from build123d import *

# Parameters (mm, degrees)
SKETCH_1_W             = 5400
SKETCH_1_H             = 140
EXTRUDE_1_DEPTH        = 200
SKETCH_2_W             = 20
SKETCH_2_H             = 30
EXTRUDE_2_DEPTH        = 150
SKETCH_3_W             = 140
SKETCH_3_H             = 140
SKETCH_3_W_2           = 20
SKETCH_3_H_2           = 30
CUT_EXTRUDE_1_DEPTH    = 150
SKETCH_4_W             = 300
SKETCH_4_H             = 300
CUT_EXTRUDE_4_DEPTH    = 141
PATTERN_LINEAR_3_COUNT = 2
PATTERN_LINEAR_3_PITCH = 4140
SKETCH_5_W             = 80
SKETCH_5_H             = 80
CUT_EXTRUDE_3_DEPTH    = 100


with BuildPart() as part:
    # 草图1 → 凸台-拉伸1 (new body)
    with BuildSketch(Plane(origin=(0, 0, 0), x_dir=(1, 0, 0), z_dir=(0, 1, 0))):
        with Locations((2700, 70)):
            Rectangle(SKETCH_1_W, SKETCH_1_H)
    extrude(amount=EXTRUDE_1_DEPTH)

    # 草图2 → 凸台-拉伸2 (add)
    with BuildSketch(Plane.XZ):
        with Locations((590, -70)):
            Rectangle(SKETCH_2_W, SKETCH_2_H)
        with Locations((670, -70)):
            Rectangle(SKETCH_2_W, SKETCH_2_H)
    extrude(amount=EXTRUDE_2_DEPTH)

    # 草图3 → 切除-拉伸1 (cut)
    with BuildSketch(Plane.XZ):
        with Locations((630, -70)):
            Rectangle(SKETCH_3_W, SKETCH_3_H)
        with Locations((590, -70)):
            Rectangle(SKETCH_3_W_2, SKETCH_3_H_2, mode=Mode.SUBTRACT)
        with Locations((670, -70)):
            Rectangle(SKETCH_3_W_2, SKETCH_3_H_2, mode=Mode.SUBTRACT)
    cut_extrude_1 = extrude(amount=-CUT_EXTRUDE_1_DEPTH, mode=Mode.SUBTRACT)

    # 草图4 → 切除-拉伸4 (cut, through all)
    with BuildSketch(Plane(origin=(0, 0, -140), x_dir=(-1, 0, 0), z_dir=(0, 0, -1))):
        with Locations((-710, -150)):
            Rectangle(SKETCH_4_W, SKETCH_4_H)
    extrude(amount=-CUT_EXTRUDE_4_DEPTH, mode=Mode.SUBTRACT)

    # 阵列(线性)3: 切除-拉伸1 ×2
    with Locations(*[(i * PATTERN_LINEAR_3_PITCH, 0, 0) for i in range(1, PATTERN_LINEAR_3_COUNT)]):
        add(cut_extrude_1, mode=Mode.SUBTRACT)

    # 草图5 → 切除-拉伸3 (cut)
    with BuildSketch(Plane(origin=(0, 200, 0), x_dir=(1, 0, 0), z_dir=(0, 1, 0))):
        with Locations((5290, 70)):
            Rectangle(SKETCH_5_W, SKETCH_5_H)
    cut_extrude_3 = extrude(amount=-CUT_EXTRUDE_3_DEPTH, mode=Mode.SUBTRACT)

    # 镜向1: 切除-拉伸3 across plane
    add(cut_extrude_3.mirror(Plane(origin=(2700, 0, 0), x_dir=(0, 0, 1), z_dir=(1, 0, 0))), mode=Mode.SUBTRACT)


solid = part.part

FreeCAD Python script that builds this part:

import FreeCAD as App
import Part
import Sketcher

V = App.Vector
Q = App.Units.Quantity

doc = App.newDocument("Part")
body = doc.addObject("PartDesign::Body", "Body")

sketch1 = doc.addObject("Sketcher::SketchObject", "Sketch")
body.addObject(sketch1)
sketch1.AttachmentSupport = (doc.XZ_Plane, [""])
sketch1.MapMode = "FlatFace"
sketch1.addGeometry(Part.LineSegment(V(0, -140, 0), V(0, 0, 0)), False)
sketch1.addGeometry(Part.LineSegment(V(0, 0, 0), V(5400, 0, 0)), False)
sketch1.addGeometry(Part.LineSegment(V(5400, 0, 0), V(5400, -140, 0)), False)
sketch1.addGeometry(Part.LineSegment(V(5400, -140, 0), V(0, -140, 0)), False)
sketch1.addConstraint(Sketcher.Constraint("Coincident", 0, 2, 1, 1))
sketch1.addConstraint(Sketcher.Constraint("Coincident", 1, 2, 2, 1))
sketch1.addConstraint(Sketcher.Constraint("Coincident", 2, 2, 3, 1))
sketch1.addConstraint(Sketcher.Constraint("Coincident", 3, 2, 0, 1))
sketch1.addConstraint(Sketcher.Constraint("Vertical", 0))
sketch1.addConstraint(Sketcher.Constraint("Horizontal", 1))
sketch1.addConstraint(Sketcher.Constraint("Vertical", 2))
sketch1.addConstraint(Sketcher.Constraint("Horizontal", 3))
sketch1.addConstraint(Sketcher.Constraint("Coincident", 0, 2, -1, 1))
sketch1.addConstraint(Sketcher.Constraint("DistanceX", 1, 1, 1, 2, Q("5400 mm")))
sketch1.addConstraint(Sketcher.Constraint("DistanceY", 0, 1, 0, 2, Q("140 mm")))
pad1 = doc.addObject("PartDesign::Pad", "Pad")
body.addObject(pad1)
pad1.Profile = sketch1
pad1.Length = 200
pad1.Reversed = True

sketch2 = doc.addObject("Sketcher::SketchObject", "Sketch001")
body.addObject(sketch2)
sketch2.AttachmentSupport = (doc.XZ_Plane, [""])
sketch2.MapMode = "FlatFace"
sketch2.addGeometry(Part.LineSegment(V(580, -55, 0), V(580, -85, 0)), False)
sketch2.addGeometry(Part.LineSegment(V(580, -85, 0), V(600, -85, 0)), False)
sketch2.addGeometry(Part.LineSegment(V(600, -85, 0), V(600, -55, 0)), False)
sketch2.addGeometry(Part.LineSegment(V(600, -55, 0), V(580, -55, 0)), False)
sketch2.addGeometry(Part.LineSegment(V(660, -55, 0), V(660, -85, 0)), False)
sketch2.addGeometry(Part.LineSegment(V(660, -85, 0), V(680, -85, 0)), False)
sketch2.addGeometry(Part.LineSegment(V(680, -85, 0), V(680, -55, 0)), False)
sketch2.addGeometry(Part.LineSegment(V(680, -55, 0), V(660, -55, 0)), False)
sketch2.addConstraint(Sketcher.Constraint("Coincident", 0, 2, 1, 1))
sketch2.addConstraint(Sketcher.Constraint("Coincident", 1, 2, 2, 1))
sketch2.addConstraint(Sketcher.Constraint("Coincident", 2, 2, 3, 1))
sketch2.addConstraint(Sketcher.Constraint("Coincident", 3, 2, 0, 1))
sketch2.addConstraint(Sketcher.Constraint("Coincident", 4, 2, 5, 1))
sketch2.addConstraint(Sketcher.Constraint("Coincident", 5, 2, 6, 1))
sketch2.addConstraint(Sketcher.Constraint("Coincident", 6, 2, 7, 1))
sketch2.addConstraint(Sketcher.Constraint("Coincident", 7, 2, 4, 1))
sketch2.addConstraint(Sketcher.Constraint("Vertical", 0))
sketch2.addConstraint(Sketcher.Constraint("Horizontal", 1))
sketch2.addConstraint(Sketcher.Constraint("Vertical", 2))
sketch2.addConstraint(Sketcher.Constraint("Horizontal", 3))
sketch2.addConstraint(Sketcher.Constraint("Vertical", 4))
sketch2.addConstraint(Sketcher.Constraint("Horizontal", 5))
sketch2.addConstraint(Sketcher.Constraint("Vertical", 6))
sketch2.addConstraint(Sketcher.Constraint("Horizontal", 7))
sketch2.addConstraint(Sketcher.Constraint("Horizontal", 1, 2, 4, 2))
sketch2.addConstraint(Sketcher.Constraint("Horizontal", 3, 2, 6, 2))
sketch2.addConstraint(Sketcher.Constraint("Equal", 3, 5))
sketch2.addConstraint(Sketcher.Constraint("DistanceX", 1, 1, 1, 2, Q("20 mm")))
sketch2.addConstraint(Sketcher.Constraint("DistanceY", 0, 2, 0, 1, Q("30 mm")))
sketch2.addConstraint(Sketcher.Constraint("DistanceX", -1, 1, 0, 2, Q("580 mm")))
sketch2.addConstraint(Sketcher.Constraint("DistanceY", 0, 2, -1, 1, Q("85 mm")))
sketch2.addConstraint(Sketcher.Constraint("DistanceX", -1, 1, 4, 2, Q("660 mm")))
pad2 = doc.addObject("PartDesign::Pad", "Pad001")
body.addObject(pad2)
pad2.Profile = sketch2
pad2.Length = 150

sketch3 = doc.addObject("Sketcher::SketchObject", "Sketch002")
body.addObject(sketch3)
sketch3.AttachmentSupport = (doc.XZ_Plane, [""])
sketch3.MapMode = "FlatFace"
sketch3.addGeometry(Part.LineSegment(V(560, 0, 0), V(560, -140, 0)), False)
sketch3.addGeometry(Part.LineSegment(V(560, -140, 0), V(700, -140, 0)), False)
sketch3.addGeometry(Part.LineSegment(V(700, -140, 0), V(700, 0, 0)), False)
sketch3.addGeometry(Part.LineSegment(V(700, 0, 0), V(560, 0, 0)), False)
sketch3.addGeometry(Part.LineSegment(V(600, -85, 0), V(580, -85, 0)), False)
sketch3.addGeometry(Part.LineSegment(V(580, -85, 0), V(580, -55, 0)), False)
sketch3.addGeometry(Part.LineSegment(V(580, -55, 0), V(600, -55, 0)), False)
sketch3.addGeometry(Part.LineSegment(V(600, -55, 0), V(600, -85, 0)), False)
sketch3.addGeometry(Part.LineSegment(V(680, -85, 0), V(660, -85, 0)), False)
sketch3.addGeometry(Part.LineSegment(V(660, -85, 0), V(660, -55, 0)), False)
sketch3.addGeometry(Part.LineSegment(V(660, -55, 0), V(680, -55, 0)), False)
sketch3.addGeometry(Part.LineSegment(V(680, -55, 0), V(680, -85, 0)), False)
sketch3.addConstraint(Sketcher.Constraint("Coincident", 0, 2, 1, 1))
sketch3.addConstraint(Sketcher.Constraint("Coincident", 1, 2, 2, 1))
sketch3.addConstraint(Sketcher.Constraint("Coincident", 2, 2, 3, 1))
sketch3.addConstraint(Sketcher.Constraint("Coincident", 3, 2, 0, 1))
sketch3.addConstraint(Sketcher.Constraint("Coincident", 4, 2, 5, 1))
sketch3.addConstraint(Sketcher.Constraint("Coincident", 5, 2, 6, 1))
sketch3.addConstraint(Sketcher.Constraint("Coincident", 6, 2, 7, 1))
sketch3.addConstraint(Sketcher.Constraint("Coincident", 7, 2, 4, 1))
sketch3.addConstraint(Sketcher.Constraint("Coincident", 8, 2, 9, 1))
sketch3.addConstraint(Sketcher.Constraint("Coincident", 9, 2, 10, 1))
sketch3.addConstraint(Sketcher.Constraint("Coincident", 10, 2, 11, 1))
sketch3.addConstraint(Sketcher.Constraint("Coincident", 11, 2, 8, 1))
sketch3.addConstraint(Sketcher.Constraint("Vertical", 0))
sketch3.addConstraint(Sketcher.Constraint("Horizontal", 1))
sketch3.addConstraint(Sketcher.Constraint("Vertical", 2))
sketch3.addConstraint(Sketcher.Constraint("Horizontal", 3))
sketch3.addConstraint(Sketcher.Constraint("Horizontal", 4))
sketch3.addConstraint(Sketcher.Constraint("Vertical", 5))
sketch3.addConstraint(Sketcher.Constraint("Horizontal", 6))
sketch3.addConstraint(Sketcher.Constraint("Vertical", 7))
sketch3.addConstraint(Sketcher.Constraint("Horizontal", 8))
sketch3.addConstraint(Sketcher.Constraint("Vertical", 9))
sketch3.addConstraint(Sketcher.Constraint("Horizontal", 10))
sketch3.addConstraint(Sketcher.Constraint("Vertical", 11))
sketch3.addConstraint(Sketcher.Constraint("PointOnObject", 2, 2, -1))
sketch3.addConstraint(Sketcher.Constraint("Horizontal", 7, 2, 8, 2))
sketch3.addConstraint(Sketcher.Constraint("Horizontal", 6, 2, 9, 2))
sketch3.addConstraint(Sketcher.Constraint("Equal", 6, 8))
sketch3.addConstraint(Sketcher.Constraint("Equal", 3, 0))
sketch3.addConstraint(Sketcher.Constraint("DistanceX", 1, 1, 1, 2, Q("140 mm")))
sketch3.addConstraint(Sketcher.Constraint("DistanceX", 4, 2, 4, 1, Q("20 mm")))
sketch3.addConstraint(Sketcher.Constraint("DistanceY", 5, 1, 5, 2, Q("30 mm")))
sketch3.addConstraint(Sketcher.Constraint("DistanceX", -1, 1, 0, 2, Q("560 mm")))
sketch3.addConstraint(Sketcher.Constraint("DistanceX", -1, 1, 4, 2, Q("580 mm")))
sketch3.addConstraint(Sketcher.Constraint("DistanceY", 4, 2, -1, 1, Q("85 mm")))
sketch3.addConstraint(Sketcher.Constraint("DistanceX", -1, 1, 8, 2, Q("660 mm")))
pocket1 = doc.addObject("PartDesign::Pocket", "Pocket")
body.addObject(pocket1)
pocket1.Profile = sketch3
pocket1.Length = 150

sketch4 = doc.addObject("Sketcher::SketchObject", "Sketch003")
body.addObject(sketch4)
sketch4.AttachmentSupport = (doc.XY_Plane, [""])
sketch4.MapMode = "FlatFace"
sketch4.AttachmentOffset = App.Placement(V(0, 0, -140), App.Rotation())
sketch4.addGeometry(Part.LineSegment(V(860, 0, 0), V(860, -300, 0)), False)
sketch4.addGeometry(Part.LineSegment(V(860, -300, 0), V(560, -300, 0)), False)
sketch4.addGeometry(Part.LineSegment(V(560, -300, 0), V(560, 0, 0)), False)
sketch4.addGeometry(Part.LineSegment(V(560, 0, 0), V(860, 0, 0)), False)
sketch4.addConstraint(Sketcher.Constraint("Coincident", 0, 2, 1, 1))
sketch4.addConstraint(Sketcher.Constraint("Coincident", 1, 2, 2, 1))
sketch4.addConstraint(Sketcher.Constraint("Coincident", 2, 2, 3, 1))
sketch4.addConstraint(Sketcher.Constraint("Coincident", 3, 2, 0, 1))
sketch4.addConstraint(Sketcher.Constraint("Vertical", 0))
sketch4.addConstraint(Sketcher.Constraint("Horizontal", 1))
sketch4.addConstraint(Sketcher.Constraint("Vertical", 2))
sketch4.addConstraint(Sketcher.Constraint("Horizontal", 3))
sketch4.addConstraint(Sketcher.Constraint("PointOnObject", 2, 2, -1))
sketch4.addConstraint(Sketcher.Constraint("Equal", 3, 0))
sketch4.addConstraint(Sketcher.Constraint("DistanceX", 1, 2, 1, 1, Q("300 mm")))
sketch4.addConstraint(Sketcher.Constraint("DistanceX", -1, 1, 0, 2, Q("860 mm")))
pocket2 = doc.addObject("PartDesign::Pocket", "Pocket001")
body.addObject(pocket2)
pocket2.Profile = sketch4
pocket2.Type = "ThroughAll"
pocket2.Reversed = True
doc.recompute()

linearpattern = doc.addObject("PartDesign::LinearPattern", "LinearPattern")
body.addObject(linearpattern)
linearpattern.Originals = [pocket1]
linearpattern.Direction = (doc.X_Axis, [""])
linearpattern.Mode = "offset"
linearpattern.Offset = 4140
linearpattern.Occurrences = 2
body.Tip = linearpattern

sketch5 = doc.addObject("Sketcher::SketchObject", "Sketch004")
body.addObject(sketch5)
sketch5.AttachmentSupport = (doc.XZ_Plane, [""])
sketch5.MapMode = "FlatFace"
sketch5.AttachmentOffset = App.Placement(V(0, 0, -200), App.Rotation())
sketch5.addGeometry(Part.LineSegment(V(5250, -110, 0), V(5250, -30, 0)), False)
sketch5.addGeometry(Part.LineSegment(V(5250, -30, 0), V(5330, -30, 0)), False)
sketch5.addGeometry(Part.LineSegment(V(5330, -30, 0), V(5330, -110, 0)), False)
sketch5.addGeometry(Part.LineSegment(V(5330, -110, 0), V(5250, -110, 0)), False)
sketch5.addConstraint(Sketcher.Constraint("Coincident", 0, 2, 1, 1))
sketch5.addConstraint(Sketcher.Constraint("Coincident", 1, 2, 2, 1))
sketch5.addConstraint(Sketcher.Constraint("Coincident", 2, 2, 3, 1))
sketch5.addConstraint(Sketcher.Constraint("Coincident", 3, 2, 0, 1))
sketch5.addConstraint(Sketcher.Constraint("Vertical", 0))
sketch5.addConstraint(Sketcher.Constraint("Horizontal", 1))
sketch5.addConstraint(Sketcher.Constraint("Vertical", 2))
sketch5.addConstraint(Sketcher.Constraint("Horizontal", 3))
sketch5.addConstraint(Sketcher.Constraint("Equal", 3, 0))
sketch5.addConstraint(Sketcher.Constraint("DistanceX", 1, 1, 1, 2, Q("80 mm")))
sketch5.addConstraint(Sketcher.Constraint("DistanceX", -1, 1, 0, 2, Q("5250 mm")))
sketch5.addConstraint(Sketcher.Constraint("DistanceY", 0, 2, -1, 1, Q("30 mm")))
pocket3 = doc.addObject("PartDesign::Pocket", "Pocket002")
body.addObject(pocket3)
pocket3.Profile = sketch5
pocket3.Length = 100
pocket3.Reversed = True
doc.recompute()

datumplane = doc.addObject("PartDesign::Plane", "DatumPlane")
body.addObject(datumplane)
datumplane.AttachmentSupport = (doc.YZ_Plane, [""])
datumplane.MapMode = "FlatFace"
datumplane.AttachmentOffset = App.Placement(V(0, 0, 2700), App.Rotation())
mirrored = doc.addObject("PartDesign::Mirrored", "Mirrored")
body.addObject(mirrored)
mirrored.Originals = [pocket3]
mirrored.MirrorPlane = (datumplane, [""])
body.Tip = mirrored

doc.recompute()
